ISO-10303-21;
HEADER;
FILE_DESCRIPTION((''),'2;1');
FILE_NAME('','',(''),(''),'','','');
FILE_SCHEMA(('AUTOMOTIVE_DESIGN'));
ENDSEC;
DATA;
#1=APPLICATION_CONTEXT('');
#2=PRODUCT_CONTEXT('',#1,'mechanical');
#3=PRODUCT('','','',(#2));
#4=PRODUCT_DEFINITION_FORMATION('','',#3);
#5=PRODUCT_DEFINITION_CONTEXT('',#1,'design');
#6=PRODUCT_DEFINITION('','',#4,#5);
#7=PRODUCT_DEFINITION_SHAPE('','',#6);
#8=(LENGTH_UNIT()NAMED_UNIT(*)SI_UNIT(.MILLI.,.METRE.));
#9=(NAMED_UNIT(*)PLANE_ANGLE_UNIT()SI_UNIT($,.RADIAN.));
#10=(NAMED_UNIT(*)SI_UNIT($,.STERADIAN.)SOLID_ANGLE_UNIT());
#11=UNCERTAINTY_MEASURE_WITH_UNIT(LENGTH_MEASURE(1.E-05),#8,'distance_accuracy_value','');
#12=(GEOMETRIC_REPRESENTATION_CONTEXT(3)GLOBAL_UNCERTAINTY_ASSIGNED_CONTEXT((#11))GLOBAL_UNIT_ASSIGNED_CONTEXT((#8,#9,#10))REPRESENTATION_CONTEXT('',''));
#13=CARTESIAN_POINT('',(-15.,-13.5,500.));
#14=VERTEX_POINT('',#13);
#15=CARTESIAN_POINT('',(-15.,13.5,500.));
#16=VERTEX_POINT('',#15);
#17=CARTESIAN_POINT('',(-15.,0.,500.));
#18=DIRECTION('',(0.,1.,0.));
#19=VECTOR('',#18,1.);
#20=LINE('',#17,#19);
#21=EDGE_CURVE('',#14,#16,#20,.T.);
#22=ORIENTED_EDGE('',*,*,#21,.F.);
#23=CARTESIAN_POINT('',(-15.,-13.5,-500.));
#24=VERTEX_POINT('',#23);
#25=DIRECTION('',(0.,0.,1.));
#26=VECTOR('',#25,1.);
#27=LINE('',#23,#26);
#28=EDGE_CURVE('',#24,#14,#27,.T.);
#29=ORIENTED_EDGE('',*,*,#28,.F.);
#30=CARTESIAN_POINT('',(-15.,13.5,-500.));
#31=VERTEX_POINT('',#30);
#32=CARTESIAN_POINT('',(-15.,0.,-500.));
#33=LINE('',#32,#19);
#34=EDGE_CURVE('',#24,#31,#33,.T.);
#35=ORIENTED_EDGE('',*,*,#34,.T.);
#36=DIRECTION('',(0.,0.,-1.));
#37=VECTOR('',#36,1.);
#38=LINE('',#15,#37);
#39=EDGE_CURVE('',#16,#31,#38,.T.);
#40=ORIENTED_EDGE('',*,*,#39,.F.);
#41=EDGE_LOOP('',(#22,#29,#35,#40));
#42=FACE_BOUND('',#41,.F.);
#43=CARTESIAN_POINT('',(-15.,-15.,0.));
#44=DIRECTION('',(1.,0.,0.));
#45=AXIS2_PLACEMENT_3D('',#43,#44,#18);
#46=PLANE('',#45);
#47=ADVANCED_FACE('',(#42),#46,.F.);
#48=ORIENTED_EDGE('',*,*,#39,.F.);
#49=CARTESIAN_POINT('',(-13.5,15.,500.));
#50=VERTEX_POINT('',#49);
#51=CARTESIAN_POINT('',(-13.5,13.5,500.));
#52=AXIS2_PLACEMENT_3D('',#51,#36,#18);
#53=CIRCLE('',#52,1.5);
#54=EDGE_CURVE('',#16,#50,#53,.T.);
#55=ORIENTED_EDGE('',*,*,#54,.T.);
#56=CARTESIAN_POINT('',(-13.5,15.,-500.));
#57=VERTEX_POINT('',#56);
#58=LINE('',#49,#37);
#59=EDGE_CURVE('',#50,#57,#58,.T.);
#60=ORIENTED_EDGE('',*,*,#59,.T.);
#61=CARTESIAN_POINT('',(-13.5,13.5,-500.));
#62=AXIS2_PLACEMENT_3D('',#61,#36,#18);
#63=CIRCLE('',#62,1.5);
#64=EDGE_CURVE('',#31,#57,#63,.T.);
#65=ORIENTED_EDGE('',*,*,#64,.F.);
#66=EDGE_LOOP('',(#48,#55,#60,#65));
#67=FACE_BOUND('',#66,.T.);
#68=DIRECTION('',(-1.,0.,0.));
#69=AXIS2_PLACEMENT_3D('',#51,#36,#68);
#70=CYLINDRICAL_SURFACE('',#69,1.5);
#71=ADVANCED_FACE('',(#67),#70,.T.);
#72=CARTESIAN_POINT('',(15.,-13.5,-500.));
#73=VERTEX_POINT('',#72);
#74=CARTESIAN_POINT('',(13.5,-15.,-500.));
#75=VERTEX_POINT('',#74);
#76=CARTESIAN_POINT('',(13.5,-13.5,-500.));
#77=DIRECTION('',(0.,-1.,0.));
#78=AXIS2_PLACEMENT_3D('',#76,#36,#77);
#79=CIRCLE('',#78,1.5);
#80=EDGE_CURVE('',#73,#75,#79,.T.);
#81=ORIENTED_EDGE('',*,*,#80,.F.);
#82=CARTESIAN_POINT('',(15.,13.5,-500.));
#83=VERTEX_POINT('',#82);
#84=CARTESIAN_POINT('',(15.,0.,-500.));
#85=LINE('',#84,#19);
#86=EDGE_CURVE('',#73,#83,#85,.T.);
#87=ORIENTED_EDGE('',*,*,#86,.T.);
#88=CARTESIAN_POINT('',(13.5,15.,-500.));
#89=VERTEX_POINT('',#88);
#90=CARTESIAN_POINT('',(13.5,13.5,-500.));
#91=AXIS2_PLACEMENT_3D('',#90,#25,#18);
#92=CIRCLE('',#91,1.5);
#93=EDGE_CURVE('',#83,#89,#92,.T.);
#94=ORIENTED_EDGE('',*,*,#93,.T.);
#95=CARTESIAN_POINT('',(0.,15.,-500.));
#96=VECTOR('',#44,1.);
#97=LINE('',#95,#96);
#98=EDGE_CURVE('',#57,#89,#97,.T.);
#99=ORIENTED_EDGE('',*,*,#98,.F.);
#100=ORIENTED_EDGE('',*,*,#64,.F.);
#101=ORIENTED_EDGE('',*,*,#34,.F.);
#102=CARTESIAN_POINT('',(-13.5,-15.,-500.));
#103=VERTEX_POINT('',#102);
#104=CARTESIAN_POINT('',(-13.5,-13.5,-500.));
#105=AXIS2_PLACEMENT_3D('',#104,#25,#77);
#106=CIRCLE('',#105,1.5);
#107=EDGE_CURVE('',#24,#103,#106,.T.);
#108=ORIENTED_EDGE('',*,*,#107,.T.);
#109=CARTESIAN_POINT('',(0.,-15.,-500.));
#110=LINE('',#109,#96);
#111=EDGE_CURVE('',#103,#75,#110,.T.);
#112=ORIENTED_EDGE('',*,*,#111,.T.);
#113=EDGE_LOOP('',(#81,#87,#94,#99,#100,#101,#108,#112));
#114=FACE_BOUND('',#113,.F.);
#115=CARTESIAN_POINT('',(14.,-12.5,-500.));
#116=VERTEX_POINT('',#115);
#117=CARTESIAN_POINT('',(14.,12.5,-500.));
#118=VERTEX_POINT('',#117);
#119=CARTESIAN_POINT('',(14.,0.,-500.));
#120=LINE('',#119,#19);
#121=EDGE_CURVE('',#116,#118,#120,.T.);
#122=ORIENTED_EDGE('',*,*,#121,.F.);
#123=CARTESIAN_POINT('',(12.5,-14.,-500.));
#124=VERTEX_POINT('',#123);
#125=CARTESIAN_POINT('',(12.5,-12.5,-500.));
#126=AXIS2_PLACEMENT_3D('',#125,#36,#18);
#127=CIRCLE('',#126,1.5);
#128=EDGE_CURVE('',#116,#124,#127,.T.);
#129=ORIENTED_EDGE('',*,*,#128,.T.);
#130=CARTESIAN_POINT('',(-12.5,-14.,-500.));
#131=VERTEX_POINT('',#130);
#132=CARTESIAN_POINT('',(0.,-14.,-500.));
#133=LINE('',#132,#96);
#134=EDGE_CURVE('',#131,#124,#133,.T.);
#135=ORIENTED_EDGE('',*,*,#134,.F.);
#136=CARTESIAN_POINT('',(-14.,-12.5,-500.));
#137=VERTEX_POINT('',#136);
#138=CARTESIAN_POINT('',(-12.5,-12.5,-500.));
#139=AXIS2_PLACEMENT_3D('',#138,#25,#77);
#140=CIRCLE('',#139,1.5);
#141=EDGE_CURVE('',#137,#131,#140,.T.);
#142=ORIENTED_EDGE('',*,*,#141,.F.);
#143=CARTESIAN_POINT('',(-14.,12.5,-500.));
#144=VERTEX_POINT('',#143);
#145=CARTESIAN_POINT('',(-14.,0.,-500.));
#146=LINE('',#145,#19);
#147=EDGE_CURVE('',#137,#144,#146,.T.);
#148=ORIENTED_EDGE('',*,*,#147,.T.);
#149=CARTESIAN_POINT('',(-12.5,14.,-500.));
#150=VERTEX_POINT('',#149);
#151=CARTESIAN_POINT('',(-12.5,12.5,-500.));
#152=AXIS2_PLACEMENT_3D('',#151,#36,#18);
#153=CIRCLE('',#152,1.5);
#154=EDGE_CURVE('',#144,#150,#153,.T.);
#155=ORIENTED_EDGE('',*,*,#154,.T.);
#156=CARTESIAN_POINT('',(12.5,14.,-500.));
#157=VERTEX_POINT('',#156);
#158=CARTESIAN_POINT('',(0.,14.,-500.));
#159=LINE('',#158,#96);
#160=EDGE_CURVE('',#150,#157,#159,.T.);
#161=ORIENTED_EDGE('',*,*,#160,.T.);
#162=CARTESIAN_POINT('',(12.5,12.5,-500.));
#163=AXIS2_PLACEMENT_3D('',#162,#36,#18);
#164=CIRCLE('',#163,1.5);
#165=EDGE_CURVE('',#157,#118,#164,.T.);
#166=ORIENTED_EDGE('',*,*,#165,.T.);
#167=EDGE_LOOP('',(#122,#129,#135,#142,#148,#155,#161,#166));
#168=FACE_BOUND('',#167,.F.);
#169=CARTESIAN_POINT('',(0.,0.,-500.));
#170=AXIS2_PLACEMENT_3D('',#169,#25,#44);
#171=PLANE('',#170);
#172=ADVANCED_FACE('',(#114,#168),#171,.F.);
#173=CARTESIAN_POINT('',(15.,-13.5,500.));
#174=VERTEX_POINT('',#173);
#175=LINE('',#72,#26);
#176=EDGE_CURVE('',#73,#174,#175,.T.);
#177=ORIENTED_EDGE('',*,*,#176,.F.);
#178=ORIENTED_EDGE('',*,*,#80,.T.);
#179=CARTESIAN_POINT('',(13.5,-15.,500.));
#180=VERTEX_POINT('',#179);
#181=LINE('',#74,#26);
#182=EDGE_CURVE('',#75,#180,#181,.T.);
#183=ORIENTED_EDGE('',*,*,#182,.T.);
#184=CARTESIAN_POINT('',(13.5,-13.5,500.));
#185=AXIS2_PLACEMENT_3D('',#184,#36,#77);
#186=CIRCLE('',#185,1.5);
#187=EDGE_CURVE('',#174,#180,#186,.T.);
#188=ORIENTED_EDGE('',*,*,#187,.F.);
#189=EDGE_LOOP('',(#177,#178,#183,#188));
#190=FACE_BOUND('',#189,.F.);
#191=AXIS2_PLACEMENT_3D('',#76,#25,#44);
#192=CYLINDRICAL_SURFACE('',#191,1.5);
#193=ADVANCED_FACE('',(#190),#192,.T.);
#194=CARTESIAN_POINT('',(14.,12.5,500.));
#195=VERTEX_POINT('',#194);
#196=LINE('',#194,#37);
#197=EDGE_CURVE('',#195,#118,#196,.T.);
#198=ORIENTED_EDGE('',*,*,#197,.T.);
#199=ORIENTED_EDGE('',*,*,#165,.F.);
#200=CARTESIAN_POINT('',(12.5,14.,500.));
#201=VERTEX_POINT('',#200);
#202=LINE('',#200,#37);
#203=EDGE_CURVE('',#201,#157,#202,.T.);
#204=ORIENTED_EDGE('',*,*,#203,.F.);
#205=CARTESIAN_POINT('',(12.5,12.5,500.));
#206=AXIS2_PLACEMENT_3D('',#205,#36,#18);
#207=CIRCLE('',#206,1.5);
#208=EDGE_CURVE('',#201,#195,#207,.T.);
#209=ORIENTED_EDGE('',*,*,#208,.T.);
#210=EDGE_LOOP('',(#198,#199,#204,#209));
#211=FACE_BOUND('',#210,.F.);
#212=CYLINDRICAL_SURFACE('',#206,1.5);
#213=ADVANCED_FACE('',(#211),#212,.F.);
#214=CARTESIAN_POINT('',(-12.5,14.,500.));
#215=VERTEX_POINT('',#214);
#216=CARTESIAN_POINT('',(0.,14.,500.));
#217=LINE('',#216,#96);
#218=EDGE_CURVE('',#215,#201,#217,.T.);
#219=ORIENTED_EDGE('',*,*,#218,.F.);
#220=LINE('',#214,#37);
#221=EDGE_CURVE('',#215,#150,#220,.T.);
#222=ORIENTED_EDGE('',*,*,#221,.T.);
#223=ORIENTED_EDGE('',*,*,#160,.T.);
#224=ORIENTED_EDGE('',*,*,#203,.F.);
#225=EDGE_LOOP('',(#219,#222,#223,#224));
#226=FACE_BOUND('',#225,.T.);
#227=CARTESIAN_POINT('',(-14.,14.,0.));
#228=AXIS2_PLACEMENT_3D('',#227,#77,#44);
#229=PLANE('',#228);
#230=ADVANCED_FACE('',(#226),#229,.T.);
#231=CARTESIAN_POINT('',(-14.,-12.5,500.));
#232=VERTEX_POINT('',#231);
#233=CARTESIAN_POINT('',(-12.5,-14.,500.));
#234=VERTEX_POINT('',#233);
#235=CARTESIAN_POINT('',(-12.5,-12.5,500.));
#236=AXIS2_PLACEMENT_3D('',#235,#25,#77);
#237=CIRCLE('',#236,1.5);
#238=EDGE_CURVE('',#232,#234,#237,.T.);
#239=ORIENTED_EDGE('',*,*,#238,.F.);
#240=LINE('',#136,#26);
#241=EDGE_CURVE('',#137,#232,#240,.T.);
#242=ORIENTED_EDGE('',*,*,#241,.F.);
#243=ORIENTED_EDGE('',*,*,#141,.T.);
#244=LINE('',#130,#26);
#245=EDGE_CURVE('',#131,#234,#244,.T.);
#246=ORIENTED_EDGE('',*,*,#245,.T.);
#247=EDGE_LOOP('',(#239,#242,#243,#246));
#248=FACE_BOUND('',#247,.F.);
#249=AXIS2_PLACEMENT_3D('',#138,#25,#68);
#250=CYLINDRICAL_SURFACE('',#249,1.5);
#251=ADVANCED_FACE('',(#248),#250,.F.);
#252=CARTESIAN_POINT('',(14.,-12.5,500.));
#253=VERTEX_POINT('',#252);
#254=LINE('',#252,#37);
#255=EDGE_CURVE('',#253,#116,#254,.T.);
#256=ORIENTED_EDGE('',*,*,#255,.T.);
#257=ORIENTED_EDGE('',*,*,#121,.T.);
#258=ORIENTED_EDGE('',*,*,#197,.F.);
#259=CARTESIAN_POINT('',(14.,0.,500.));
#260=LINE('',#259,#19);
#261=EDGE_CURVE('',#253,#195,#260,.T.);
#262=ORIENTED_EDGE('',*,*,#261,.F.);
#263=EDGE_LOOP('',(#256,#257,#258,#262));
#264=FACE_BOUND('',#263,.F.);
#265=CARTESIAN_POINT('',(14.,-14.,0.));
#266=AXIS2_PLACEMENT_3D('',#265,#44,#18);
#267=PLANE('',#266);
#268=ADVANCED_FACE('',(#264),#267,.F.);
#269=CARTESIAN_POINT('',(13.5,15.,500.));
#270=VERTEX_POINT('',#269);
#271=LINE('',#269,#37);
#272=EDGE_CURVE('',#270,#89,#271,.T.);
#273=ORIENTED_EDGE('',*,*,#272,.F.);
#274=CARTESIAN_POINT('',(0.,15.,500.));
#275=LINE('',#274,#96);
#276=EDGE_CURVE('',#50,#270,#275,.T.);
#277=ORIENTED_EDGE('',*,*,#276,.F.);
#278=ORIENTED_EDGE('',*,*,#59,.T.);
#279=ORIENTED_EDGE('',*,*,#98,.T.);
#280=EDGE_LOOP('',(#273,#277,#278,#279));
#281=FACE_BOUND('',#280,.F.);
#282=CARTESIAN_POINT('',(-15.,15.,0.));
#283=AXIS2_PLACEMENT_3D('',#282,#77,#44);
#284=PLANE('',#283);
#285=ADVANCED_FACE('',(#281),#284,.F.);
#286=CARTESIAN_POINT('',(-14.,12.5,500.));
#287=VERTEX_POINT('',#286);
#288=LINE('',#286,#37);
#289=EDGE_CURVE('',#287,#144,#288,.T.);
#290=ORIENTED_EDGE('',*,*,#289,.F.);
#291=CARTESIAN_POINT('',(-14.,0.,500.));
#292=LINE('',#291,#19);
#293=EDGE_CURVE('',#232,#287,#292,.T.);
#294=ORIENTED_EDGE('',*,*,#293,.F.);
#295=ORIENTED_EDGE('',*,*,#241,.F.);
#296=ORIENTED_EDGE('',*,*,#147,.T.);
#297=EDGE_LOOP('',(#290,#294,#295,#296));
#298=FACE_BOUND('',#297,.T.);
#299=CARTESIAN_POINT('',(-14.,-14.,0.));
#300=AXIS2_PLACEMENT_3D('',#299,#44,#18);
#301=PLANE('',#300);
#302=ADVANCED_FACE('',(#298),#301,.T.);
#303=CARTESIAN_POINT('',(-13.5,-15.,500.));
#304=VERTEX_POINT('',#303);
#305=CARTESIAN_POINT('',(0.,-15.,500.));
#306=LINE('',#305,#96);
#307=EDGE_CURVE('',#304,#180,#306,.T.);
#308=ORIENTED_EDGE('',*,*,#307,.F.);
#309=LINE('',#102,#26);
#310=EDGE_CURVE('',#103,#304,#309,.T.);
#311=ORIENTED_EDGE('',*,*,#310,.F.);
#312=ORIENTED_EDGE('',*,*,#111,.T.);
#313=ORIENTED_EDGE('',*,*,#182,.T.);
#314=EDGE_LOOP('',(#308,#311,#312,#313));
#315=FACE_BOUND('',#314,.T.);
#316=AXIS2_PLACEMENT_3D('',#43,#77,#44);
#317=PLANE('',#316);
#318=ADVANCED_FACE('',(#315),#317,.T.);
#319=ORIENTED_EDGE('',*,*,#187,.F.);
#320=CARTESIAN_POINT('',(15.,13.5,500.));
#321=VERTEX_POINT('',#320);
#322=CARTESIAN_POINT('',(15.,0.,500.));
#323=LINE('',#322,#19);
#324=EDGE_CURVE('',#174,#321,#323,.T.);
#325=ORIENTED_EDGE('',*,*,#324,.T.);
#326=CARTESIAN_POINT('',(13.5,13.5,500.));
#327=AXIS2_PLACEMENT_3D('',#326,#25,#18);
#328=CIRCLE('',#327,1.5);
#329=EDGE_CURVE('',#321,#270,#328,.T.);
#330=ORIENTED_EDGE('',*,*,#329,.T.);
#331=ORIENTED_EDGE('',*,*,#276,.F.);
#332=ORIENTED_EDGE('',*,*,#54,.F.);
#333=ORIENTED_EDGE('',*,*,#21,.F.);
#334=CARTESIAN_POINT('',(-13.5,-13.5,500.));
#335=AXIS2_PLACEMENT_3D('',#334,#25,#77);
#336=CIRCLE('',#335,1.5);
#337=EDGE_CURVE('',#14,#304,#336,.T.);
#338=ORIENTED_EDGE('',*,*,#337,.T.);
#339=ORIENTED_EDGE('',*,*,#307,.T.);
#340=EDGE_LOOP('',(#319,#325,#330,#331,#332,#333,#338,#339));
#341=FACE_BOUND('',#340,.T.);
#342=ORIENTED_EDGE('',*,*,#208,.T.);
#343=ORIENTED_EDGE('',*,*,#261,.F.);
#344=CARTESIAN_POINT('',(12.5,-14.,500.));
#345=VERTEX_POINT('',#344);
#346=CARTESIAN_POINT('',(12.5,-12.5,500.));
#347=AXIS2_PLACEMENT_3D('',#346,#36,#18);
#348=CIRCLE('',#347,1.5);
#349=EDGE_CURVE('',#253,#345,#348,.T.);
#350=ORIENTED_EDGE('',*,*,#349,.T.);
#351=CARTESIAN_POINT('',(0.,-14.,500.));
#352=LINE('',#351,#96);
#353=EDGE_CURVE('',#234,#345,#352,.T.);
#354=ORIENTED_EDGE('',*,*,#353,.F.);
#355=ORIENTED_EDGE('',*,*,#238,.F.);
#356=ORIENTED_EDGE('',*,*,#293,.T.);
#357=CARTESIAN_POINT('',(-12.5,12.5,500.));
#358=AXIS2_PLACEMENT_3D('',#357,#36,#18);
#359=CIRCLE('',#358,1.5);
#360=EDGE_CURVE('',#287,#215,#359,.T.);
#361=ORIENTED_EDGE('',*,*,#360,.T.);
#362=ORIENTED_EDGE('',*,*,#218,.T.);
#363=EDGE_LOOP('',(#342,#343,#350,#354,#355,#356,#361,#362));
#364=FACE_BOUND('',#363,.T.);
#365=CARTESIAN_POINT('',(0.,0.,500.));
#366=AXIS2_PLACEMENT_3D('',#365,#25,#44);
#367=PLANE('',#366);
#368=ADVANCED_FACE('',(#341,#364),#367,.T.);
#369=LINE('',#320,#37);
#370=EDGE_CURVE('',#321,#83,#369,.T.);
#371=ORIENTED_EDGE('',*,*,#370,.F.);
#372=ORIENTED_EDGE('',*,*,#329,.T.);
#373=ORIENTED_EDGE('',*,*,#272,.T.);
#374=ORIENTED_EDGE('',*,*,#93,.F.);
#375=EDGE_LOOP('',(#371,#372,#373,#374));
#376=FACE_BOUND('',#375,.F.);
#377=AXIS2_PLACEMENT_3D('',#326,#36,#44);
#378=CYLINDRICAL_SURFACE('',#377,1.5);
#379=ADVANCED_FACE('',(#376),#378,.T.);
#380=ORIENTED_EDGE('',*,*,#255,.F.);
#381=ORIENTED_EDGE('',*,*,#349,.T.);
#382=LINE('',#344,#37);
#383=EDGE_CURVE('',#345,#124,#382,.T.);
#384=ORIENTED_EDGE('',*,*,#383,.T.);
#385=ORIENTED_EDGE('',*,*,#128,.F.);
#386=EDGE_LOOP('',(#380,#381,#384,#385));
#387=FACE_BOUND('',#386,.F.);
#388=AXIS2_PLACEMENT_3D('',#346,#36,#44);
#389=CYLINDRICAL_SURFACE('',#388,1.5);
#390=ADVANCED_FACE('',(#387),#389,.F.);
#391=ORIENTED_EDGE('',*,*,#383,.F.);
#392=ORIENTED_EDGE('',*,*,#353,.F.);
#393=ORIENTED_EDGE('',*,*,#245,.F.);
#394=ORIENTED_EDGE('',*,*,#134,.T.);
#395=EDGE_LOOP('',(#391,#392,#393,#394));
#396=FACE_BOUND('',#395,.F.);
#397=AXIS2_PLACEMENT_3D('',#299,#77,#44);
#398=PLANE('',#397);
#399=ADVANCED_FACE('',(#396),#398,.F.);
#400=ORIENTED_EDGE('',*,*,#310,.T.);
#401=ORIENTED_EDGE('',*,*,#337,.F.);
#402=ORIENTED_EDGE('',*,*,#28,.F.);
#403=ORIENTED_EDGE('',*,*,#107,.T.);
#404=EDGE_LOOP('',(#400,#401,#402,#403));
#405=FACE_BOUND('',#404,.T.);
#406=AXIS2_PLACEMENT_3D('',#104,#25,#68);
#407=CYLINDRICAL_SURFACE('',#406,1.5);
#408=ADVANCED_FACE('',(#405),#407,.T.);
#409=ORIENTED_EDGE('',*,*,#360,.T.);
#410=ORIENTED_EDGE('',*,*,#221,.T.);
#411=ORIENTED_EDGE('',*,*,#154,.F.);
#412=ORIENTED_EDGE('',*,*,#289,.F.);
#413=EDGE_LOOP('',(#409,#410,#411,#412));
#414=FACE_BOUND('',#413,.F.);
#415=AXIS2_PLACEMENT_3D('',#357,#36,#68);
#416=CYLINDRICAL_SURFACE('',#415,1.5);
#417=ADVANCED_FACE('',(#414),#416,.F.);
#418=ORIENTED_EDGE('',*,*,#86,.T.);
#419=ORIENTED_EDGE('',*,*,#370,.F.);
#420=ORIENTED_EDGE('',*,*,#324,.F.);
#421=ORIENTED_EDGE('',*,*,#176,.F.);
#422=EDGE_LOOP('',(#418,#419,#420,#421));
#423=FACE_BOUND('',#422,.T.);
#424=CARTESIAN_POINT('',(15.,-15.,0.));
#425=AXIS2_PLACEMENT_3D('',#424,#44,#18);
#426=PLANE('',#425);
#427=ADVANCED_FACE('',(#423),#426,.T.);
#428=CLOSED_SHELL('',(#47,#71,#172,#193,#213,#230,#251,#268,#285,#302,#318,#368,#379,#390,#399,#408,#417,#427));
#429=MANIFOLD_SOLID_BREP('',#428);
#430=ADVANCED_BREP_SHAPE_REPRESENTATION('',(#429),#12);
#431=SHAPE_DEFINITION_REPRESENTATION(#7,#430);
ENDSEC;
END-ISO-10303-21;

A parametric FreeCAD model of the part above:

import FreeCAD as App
import Part
import Sketcher
from FreeCAD import Vector
Q = App.Units.Quantity


def edges_at(feature, points):
    """Names of the edges that pass closest to the given points."""
    edges = feature.Shape.Edges
    near = lambda p: min(range(len(edges)), key=lambda i: edges[i].distToShape(Part.Vertex(*p))[0])
    return sorted({f"Edge{near(p) + 1}" for p in points})

doc = App.newDocument("Part")
body = doc.addObject("PartDesign::Body", "Body")

sketch1 = doc.addObject("Sketcher::SketchObject", "Sketch")
body.addObject(sketch1)
sketch1.AttachmentSupport = (doc.XY_Plane, [""])
sketch1.MapMode = "FlatFace"
sketch1.addGeometry(Part.LineSegment(Vector(-15, 15, 0), Vector(-15, -15, 0)), False)
sketch1.addGeometry(Part.LineSegment(Vector(-15, -15, 0), Vector(15, -15, 0)), False)
sketch1.addGeometry(Part.LineSegment(Vector(15, -15, 0), Vector(15, 15, 0)), False)
sketch1.addGeometry(Part.LineSegment(Vector(15, 15, 0), Vector(-15, 15, 0)), False)
sketch1.addGeometry(Part.LineSegment(Vector(14, -14, 0), Vector(-14, -14, 0)), False)
sketch1.addGeometry(Part.LineSegment(Vector(-14, -14, 0), Vector(-14, 14, 0)), False)
sketch1.addGeometry(Part.LineSegment(Vector(-14, 14, 0), Vector(14, 14, 0)), False)
sketch1.addGeometry(Part.LineSegment(Vector(14, 14, 0), Vector(14, -14, 0)), False)
sketch1.addConstraint(Sketcher.Constraint("Coincident", 0, 2, 1, 1))
sketch1.addConstraint(Sketcher.Constraint("Coincident", 1, 2, 2, 1))
sketch1.addConstraint(Sketcher.Constraint("Coincident", 2, 2, 3, 1))
sketch1.addConstraint(Sketcher.Constraint("Coincident", 3, 2, 0, 1))
sketch1.addConstraint(Sketcher.Constraint("Coincident", 4, 2, 5, 1))
sketch1.addConstraint(Sketcher.Constraint("Coincident", 5, 2, 6, 1))
sketch1.addConstraint(Sketcher.Constraint("Coincident", 6, 2, 7, 1))
sketch1.addConstraint(Sketcher.Constraint("Coincident", 7, 2, 4, 1))
sketch1.addConstraint(Sketcher.Constraint("Vertical", 0))
sketch1.addConstraint(Sketcher.Constraint("Horizontal", 1))
sketch1.addConstraint(Sketcher.Constraint("Vertical", 2))
sketch1.addConstraint(Sketcher.Constraint("Horizontal", 3))
sketch1.addConstraint(Sketcher.Constraint("Horizontal", 4))
sketch1.addConstraint(Sketcher.Constraint("Vertical", 5))
sketch1.addConstraint(Sketcher.Constraint("Horizontal", 6))
sketch1.addConstraint(Sketcher.Constraint("Vertical", 7))
sketch1.addConstraint(Sketcher.Constraint("Symmetric", 0, 2, 2, 2, -1, 1))
sketch1.addConstraint(Sketcher.Constraint("Symmetric", 4, 2, 6, 2, -1, 1))
sketch1.addConstraint(Sketcher.Constraint("Equal", 3, 0))
sketch1.addConstraint(Sketcher.Constraint("Equal", 6, 5))
sketch1.addConstraint(Sketcher.Constraint("DistanceX", 1, 1, 1, 2, Q("30 mm")))
sketch1.addConstraint(Sketcher.Constraint("DistanceX", 4, 2, 4, 1, Q("28 mm")))
pad1 = doc.addObject("PartDesign::Pad", "Pad")
body.addObject(pad1)
pad1.Profile = sketch1
pad1.Length = 1000
pad1.Midplane = True
doc.recompute()

fillet = doc.addObject("PartDesign::Fillet", "Fillet")
body.addObject(fillet)
fillet.Base = (pad1, edges_at(pad1, [
    (14, 14, 0),
    (-14, 14, 0),
    (-14, -14, 0),
    (14, -14, 0),
    (-15, 15, 0),
    (-15, -15, 0),
    (15, 15, 0),
    (15, -15, 0),
]))
fillet.Radius = 1.5

doc.recompute()
